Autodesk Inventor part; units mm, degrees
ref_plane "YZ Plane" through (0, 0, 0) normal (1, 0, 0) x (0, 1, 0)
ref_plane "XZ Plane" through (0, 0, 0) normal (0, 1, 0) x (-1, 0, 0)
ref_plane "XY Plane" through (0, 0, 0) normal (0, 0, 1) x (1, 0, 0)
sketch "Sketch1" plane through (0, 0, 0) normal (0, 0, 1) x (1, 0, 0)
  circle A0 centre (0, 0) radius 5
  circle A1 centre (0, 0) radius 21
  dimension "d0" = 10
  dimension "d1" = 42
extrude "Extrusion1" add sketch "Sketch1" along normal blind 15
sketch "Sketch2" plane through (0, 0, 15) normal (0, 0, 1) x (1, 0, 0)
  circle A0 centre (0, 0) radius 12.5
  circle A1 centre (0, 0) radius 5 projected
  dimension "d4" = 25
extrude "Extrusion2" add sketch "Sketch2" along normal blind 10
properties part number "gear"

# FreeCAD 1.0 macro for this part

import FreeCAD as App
import Part
import Sketcher

V = App.Vector
Q = App.Units.Quantity

doc = App.newDocument("Part")
body = doc.addObject("PartDesign::Body", "Body")

sketch1 = body.newObject("Sketcher::SketchObject", "Sketch")
sketch1.AttachmentSupport = (doc.getObject("XY_Plane"), [""])
sketch1.MapMode = "FlatFace"
sketch1.addGeometry(Part.Circle(V(0, 0, 0), V(0, 0, 1), 21), False)
sketch1.addGeometry(Part.Circle(V(0, 0, 0), V(0, 0, 1), 5), False)
sketch1.addConstraint(Sketcher.Constraint("Coincident", 0, 3, -1, 1))
sketch1.addConstraint(Sketcher.Constraint("Coincident", 1, 3, -1, 1))
sketch1.addConstraint(Sketcher.Constraint("Diameter", 0, Q("42 mm")))
sketch1.addConstraint(Sketcher.Constraint("Diameter", 1, Q("10 mm")))
pad1 = body.newObject("PartDesign::Pad", "Pad")
pad1.Profile = sketch1
pad1.Length = 15

sketch2 = body.newObject("Sketcher::SketchObject", "Sketch001")
sketch2.AttachmentSupport = (doc.getObject("XY_Plane"), [""])
sketch2.MapMode = "FlatFace"
sketch2.AttachmentOffset = App.Placement(V(0, 0, 15), App.Rotation())
sketch2.addGeometry(Part.Circle(V(0, 0, 0), V(0, 0, 1), 12), False)
sketch2.addGeometry(Part.Circle(V(0, 0, 0), V(0, 0, 1), 5), False)
sketch2.addConstraint(Sketcher.Constraint("Coincident", 0, 3, -1, 1))
sketch2.addConstraint(Sketcher.Constraint("Coincident", 1, 3, -1, 1))
sketch2.addConstraint(Sketcher.Constraint("Diameter", 0, Q("25 mm")))
sketch2.addConstraint(Sketcher.Constraint("Diameter", 1, Q("10 mm")))
pad2 = body.newObject("PartDesign::Pad", "Pad001")
pad2.Profile = sketch2
pad2.Length = 10

doc.recompute()
